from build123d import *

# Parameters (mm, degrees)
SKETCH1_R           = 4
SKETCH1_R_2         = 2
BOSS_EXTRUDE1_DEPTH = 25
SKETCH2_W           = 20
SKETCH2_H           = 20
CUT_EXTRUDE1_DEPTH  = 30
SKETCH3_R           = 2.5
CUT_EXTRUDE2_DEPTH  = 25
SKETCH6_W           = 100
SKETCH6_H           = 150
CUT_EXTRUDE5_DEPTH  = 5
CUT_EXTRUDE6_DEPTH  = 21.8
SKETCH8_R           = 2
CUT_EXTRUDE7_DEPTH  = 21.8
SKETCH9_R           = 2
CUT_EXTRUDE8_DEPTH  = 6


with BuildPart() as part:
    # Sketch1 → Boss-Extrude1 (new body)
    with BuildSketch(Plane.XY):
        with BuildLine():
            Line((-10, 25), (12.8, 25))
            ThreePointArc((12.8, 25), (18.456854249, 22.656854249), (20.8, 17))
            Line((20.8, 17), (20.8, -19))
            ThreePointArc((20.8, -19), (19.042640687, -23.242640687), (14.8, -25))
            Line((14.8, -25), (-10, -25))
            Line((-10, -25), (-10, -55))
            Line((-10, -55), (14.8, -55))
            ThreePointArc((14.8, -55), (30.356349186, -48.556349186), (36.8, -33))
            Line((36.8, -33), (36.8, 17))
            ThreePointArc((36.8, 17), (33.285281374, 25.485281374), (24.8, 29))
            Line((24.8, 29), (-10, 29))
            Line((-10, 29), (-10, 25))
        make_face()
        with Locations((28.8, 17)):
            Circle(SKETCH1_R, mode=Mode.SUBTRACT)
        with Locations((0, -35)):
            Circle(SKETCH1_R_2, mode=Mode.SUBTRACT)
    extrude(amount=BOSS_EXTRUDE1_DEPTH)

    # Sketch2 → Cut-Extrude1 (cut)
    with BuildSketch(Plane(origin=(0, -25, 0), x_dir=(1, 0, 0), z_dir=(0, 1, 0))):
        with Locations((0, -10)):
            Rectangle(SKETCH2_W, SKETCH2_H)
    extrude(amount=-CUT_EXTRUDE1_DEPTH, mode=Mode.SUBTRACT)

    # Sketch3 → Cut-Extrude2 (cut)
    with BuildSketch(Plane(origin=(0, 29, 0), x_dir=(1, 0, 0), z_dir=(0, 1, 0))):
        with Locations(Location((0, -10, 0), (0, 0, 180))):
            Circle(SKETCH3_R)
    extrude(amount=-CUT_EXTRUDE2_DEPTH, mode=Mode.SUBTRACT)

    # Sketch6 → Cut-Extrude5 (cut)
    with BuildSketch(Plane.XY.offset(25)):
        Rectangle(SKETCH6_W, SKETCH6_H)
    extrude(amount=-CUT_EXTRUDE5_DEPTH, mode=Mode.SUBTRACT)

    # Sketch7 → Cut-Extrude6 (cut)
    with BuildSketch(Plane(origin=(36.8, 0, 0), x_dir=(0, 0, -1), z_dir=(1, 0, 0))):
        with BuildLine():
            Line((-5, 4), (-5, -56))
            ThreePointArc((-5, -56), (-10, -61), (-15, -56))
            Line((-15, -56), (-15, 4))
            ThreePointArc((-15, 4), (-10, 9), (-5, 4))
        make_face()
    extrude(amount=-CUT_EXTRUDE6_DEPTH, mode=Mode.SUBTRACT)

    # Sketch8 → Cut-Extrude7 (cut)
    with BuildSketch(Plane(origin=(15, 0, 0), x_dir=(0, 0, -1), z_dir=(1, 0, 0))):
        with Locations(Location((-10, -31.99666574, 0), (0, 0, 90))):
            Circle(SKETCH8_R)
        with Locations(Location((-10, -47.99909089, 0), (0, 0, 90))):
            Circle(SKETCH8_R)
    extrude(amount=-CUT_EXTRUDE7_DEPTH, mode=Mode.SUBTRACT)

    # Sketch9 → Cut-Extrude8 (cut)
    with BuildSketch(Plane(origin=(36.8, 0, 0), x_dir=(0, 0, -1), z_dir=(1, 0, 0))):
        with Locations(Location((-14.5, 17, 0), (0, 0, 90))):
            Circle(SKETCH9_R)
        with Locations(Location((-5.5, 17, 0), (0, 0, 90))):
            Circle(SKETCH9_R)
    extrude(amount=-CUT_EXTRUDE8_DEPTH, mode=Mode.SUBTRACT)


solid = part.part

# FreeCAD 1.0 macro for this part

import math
import FreeCAD as App
import Part
import Sketcher

V = App.Vector
Q = App.Units.Quantity

doc = App.newDocument("Part")
body = doc.addObject("PartDesign::Body", "Body")

sketch1 = doc.addObject("Sketcher::SketchObject", "Sketch")
body.addObject(sketch1)
sketch1.AttachmentSupport = (doc.XY_Plane, [""])
sketch1.MapMode = "FlatFace"
sketch1.addGeometry([
    Part.LineSegment(V(-10, 25, 0), V(12.8, 25, 0)),
    Part.ArcOfCircle(Part.Circle(V(12.8, 17, 0), V(0, 0, 1), 8), math.radians(0), math.radians(90)),
    Part.LineSegment(V(20.8, 17, 0), V(20.8, -19, 0)),
    Part.ArcOfCircle(Part.Circle(V(14.8, -19, 0), V(0, 0, 1), 6), math.radians(-90), math.radians(0)),
    Part.LineSegment(V(14.8, -25, 0), V(-10, -25, 0)),
    Part.LineSegment(V(-10, -25, 0), V(-10, -55, 0)),
    Part.LineSegment(V(-10, -55, 0), V(14.8, -55, 0)),
    Part.ArcOfCircle(Part.Circle(V(14.8, -33, 0), V(0, 0, 1), 22), math.radians(-90), math.radians(0)),
    Part.LineSegment(V(36.8, -33, 0), V(36.8, 17, 0)),
    Part.ArcOfCircle(Part.Circle(V(24.8, 17, 0), V(0, 0, 1), 12), math.radians(0), math.radians(90)),
    Part.LineSegment(V(24.8, 29, 0), V(-10, 29, 0)),
    Part.LineSegment(V(-10, 29, 0), V(-10, 25, 0)),
    Part.Circle(V(0, -35, 0), V(0, 0, 1), 2),
    Part.Circle(V(28.8, 17, 0), V(0, 0, 1), 4),
], False)
sketch1.addConstraint([
    Sketcher.Constraint("Tangent", 0, 2, 1, 2),
    Sketcher.Constraint("Tangent", 1, 1, 2, 1),
    Sketcher.Constraint("Tangent", 2, 2, 3, 2),
    Sketcher.Constraint("Tangent", 3, 1, 4, 1),
    Sketcher.Constraint("Coincident", 4, 2, 5, 1),
    Sketcher.Constraint("Coincident", 5, 2, 6, 1),
    Sketcher.Constraint("Tangent", 6, 2, 7, 1),
    Sketcher.Constraint("Tangent", 7, 2, 8, 1),
    Sketcher.Constraint("Tangent", 8, 2, 9, 1),
    Sketcher.Constraint("Tangent", 9, 2, 10, 1),
    Sketcher.Constraint("Coincident", 10, 2, 11, 1),
    Sketcher.Constraint("Coincident", 11, 2, 0, 1),
    Sketcher.Constraint("Horizontal", 0),
    Sketcher.Constraint("Vertical", 2),
    Sketcher.Constraint("Horizontal", 4),
    Sketcher.Constraint("Vertical", 5),
    Sketcher.Constraint("Horizontal", 6),
    Sketcher.Constraint("Vertical", 8),
    Sketcher.Constraint("Horizontal", 10),
    Sketcher.Constraint("Vertical", 11),
    Sketcher.Constraint("Symmetric", 4, 2, 11, 2, -1),
    Sketcher.Constraint("PointOnObject", 12, 3, -2),
    Sketcher.Constraint("Horizontal", 1, 3, 9, 3),
    Sketcher.Constraint("Horizontal", 9, 3, 13, 3),
    Sketcher.Constraint("Vertical", 3, 3, 7, 3),
    Sketcher.Constraint("Diameter", 12, Q("4 mm")),
    Sketcher.Constraint("Diameter", 13, Q("8 mm")),
    Sketcher.Constraint("Radius", 1, Q("8 mm")),
    Sketcher.Constraint("Radius", 3, Q("6 mm")),
    Sketcher.Constraint("Radius", 7, Q("22 mm")),
    Sketcher.Constraint("Radius", 9, Q("12 mm")),
    Sketcher.Constraint("DistanceY", 2, 2, 2, 1, Q("36 mm")),
    Sketcher.Constraint("DistanceY", 5, 2, 5, 1, Q("30 mm")),
    Sketcher.Constraint("DistanceX", 0, 1, 0, 2, Q("22.8 mm")),
    Sketcher.Constraint("DistanceY", 12, 3, -1, 1, Q("35 mm")),
    Sketcher.Constraint("DistanceX", 4, 2, -1, 1, Q("10 mm")),
    Sketcher.Constraint("DistanceX", 9, 3, 13, 3, Q("4 mm")),
])
pad1 = doc.addObject("PartDesign::Pad", "Pad")
body.addObject(pad1)
pad1.Profile = sketch1
pad1.Length = 25

sketch2 = doc.addObject("Sketcher::SketchObject", "Sketch001")
body.addObject(sketch2)
sketch2.AttachmentSupport = (doc.XZ_Plane, [""])
sketch2.MapMode = "FlatFace"
sketch2.AttachmentOffset = App.Placement(V(0, 0, 25), App.Rotation())
sketch2.addGeometry([
    Part.LineSegment(V(-10, 0, 0), V(-10, 20, 0)),
    Part.LineSegment(V(-10, 20, 0), V(10, 20, 0)),
    Part.LineSegment(V(10, 20, 0), V(10, 0, 0)),
    Part.LineSegment(V(10, 0, 0), V(-10, 0, 0)),
], False)
sketch2.addConstraint([
    Sketcher.Constraint("Coincident", 0, 2, 1, 1),
    Sketcher.Constraint("Coincident", 1, 2, 2, 1),
    Sketcher.Constraint("Coincident", 2, 2, 3, 1),
    Sketcher.Constraint("Coincident", 3, 2, 0, 1),
    Sketcher.Constraint("Vertical", 0),
    Sketcher.Constraint("Horizontal", 1),
    Sketcher.Constraint("Vertical", 2),
    Sketcher.Constraint("Horizontal", 3),
    Sketcher.Constraint("Symmetric", 2, 2, 3, 2, -1, 1),
    Sketcher.Constraint("Equal", 3, 0),
    Sketcher.Constraint("DistanceX", 1, 1, 1, 2, Q("20 mm")),
])
pocket1 = doc.addObject("PartDesign::Pocket", "Pocket")
body.addObject(pocket1)
pocket1.Profile = sketch2
pocket1.Length = 30
pocket1.Reversed = True

sketch3 = doc.addObject("Sketcher::SketchObject", "Sketch002")
body.addObject(sketch3)
sketch3.AttachmentSupport = (doc.XZ_Plane, [""])
sketch3.MapMode = "FlatFace"
sketch3.AttachmentOffset = App.Placement(V(0, 0, -29), App.Rotation())
sketch3.addGeometry(Part.Circle(V(0, 10, 0), V(0, 0, 1), 2.5), False)
sketch3.addConstraint([
    Sketcher.Constraint("PointOnObject", 0, 3, -2),
    Sketcher.Constraint("Diameter", 0, Q("5 mm")),
    Sketcher.Constraint("DistanceY", -1, 1, 0, 3, Q("10 mm")),
])
pocket2 = doc.addObject("PartDesign::Pocket", "Pocket001")
body.addObject(pocket2)
pocket2.Profile = sketch3
pocket2.Length = 25
pocket2.Reversed = True

sketch4 = doc.addObject("Sketcher::SketchObject", "Sketch003")
body.addObject(sketch4)
sketch4.AttachmentSupport = (doc.XY_Plane, [""])
sketch4.MapMode = "FlatFace"
sketch4.AttachmentOffset = App.Placement(V(0, 0, 25), App.Rotation())
sketch4.addGeometry([
    Part.LineSegment(V(-50, 75, 0), V(-50, -75, 0)),
    Part.LineSegment(V(-50, -75, 0), V(50, -75, 0)),
    Part.LineSegment(V(50, -75, 0), V(50, 75, 0)),
    Part.LineSegment(V(50, 75, 0), V(-50, 75, 0)),
], False)
sketch4.addConstraint([
    Sketcher.Constraint("Coincident", 0, 2, 1, 1),
    Sketcher.Constraint("Coincident", 1, 2, 2, 1),
    Sketcher.Constraint("Coincident", 2, 2, 3, 1),
    Sketcher.Constraint("Coincident", 3, 2, 0, 1),
    Sketcher.Constraint("Vertical", 0),
    Sketcher.Constraint("Horizontal", 1),
    Sketcher.Constraint("Vertical", 2),
    Sketcher.Constraint("Horizontal", 3),
    Sketcher.Constraint("Symmetric", 0, 2, 2, 2, -1, 1),
    Sketcher.Constraint("DistanceX", 1, 1, 1, 2, Q("100 mm")),
    Sketcher.Constraint("DistanceY", 0, 2, 0, 1, Q("150 mm")),
])
pocket3 = doc.addObject("PartDesign::Pocket", "Pocket002")
body.addObject(pocket3)
pocket3.Profile = sketch4
pocket3.Length = 5

sketch5 = doc.addObject("Sketcher::SketchObject", "Sketch004")
body.addObject(sketch5)
sketch5.AttachmentSupport = (doc.YZ_Plane, [""])
sketch5.MapMode = "FlatFace"
sketch5.AttachmentOffset = App.Placement(V(0, 0, 36.8), App.Rotation())
sketch5.addGeometry([
    Part.LineSegment(V(-56, 5, 0), V(4, 5, 0)),
    Part.ArcOfCircle(Part.Circle(V(4, 10, 0), V(0, 0, 1), 5), math.radians(-90), math.radians(90)),
    Part.LineSegment(V(4, 15, 0), V(-56, 15, 0)),
    Part.ArcOfCircle(Part.Circle(V(-56, 10, 0), V(0, 0, 1), 5), math.radians(90), math.radians(270)),
], False)
sketch5.addConstraint([
    Sketcher.Constraint("Tangent", 0, 2, 1, 1),
    Sketcher.Constraint("Tangent", 1, 2, 2, 1),
    Sketcher.Constraint("Tangent", 2, 2, 3, 1),
    Sketcher.Constraint("Tangent", 3, 2, 0, 1),
    Sketcher.Constraint("Horizontal", 0),
    Sketcher.Constraint("Horizontal", 2),
    Sketcher.Constraint("Radius", 1, Q("5 mm")),
    Sketcher.Constraint("DistanceX", 0, 1, 0, 2, Q("60 mm")),
    Sketcher.Constraint("DistanceX", -1, 1, 1, 3, Q("4 mm")),
    Sketcher.Constraint("DistanceY", -1, 1, 1, 3, Q("10 mm")),
])
pocket4 = doc.addObject("PartDesign::Pocket", "Pocket003")
body.addObject(pocket4)
pocket4.Profile = sketch5
pocket4.Length = 21.8

sketch6 = doc.addObject("Sketcher::SketchObject", "Sketch005")
body.addObject(sketch6)
sketch6.AttachmentSupport = (doc.YZ_Plane, [""])
sketch6.MapMode = "FlatFace"
sketch6.AttachmentOffset = App.Placement(V(0, 0, 15), App.Rotation())
sketch6.addGeometry([
    Part.Circle(V(-31.996666, 10, 0), V(0, 0, 1), 2),
    Part.Circle(V(-47.999091, 10, 0), V(0, 0, 1), 2),
], False)
sketch6.addConstraint([
    Sketcher.Constraint("Equal", 0, 1),
    Sketcher.Constraint("Horizontal", 0, 3, 1, 3),
    Sketcher.Constraint("Diameter", 0, Q("4 mm")),
    Sketcher.Constraint("DistanceY", -1, 1, 0, 3, Q("10 mm")),
    Sketcher.Constraint("DistanceX", 1, 3, -1, 1, Q("47.999091 mm")),
    Sketcher.Constraint("DistanceX", 0, 3, -1, 1, Q("31.996666 mm")),
])
pocket5 = doc.addObject("PartDesign::Pocket", "Pocket004")
body.addObject(pocket5)
pocket5.Profile = sketch6
pocket5.Length = 21.8

sketch7 = doc.addObject("Sketcher::SketchObject", "Sketch006")
body.addObject(sketch7)
sketch7.AttachmentSupport = (doc.YZ_Plane, [""])
sketch7.MapMode = "FlatFace"
sketch7.AttachmentOffset = App.Placement(V(0, 0, 36.8), App.Rotation())
sketch7.addGeometry([
    Part.Circle(V(17, 14.5, 0), V(0, 0, 1), 2),
    Part.Circle(V(17, 5.5, 0), V(0, 0, 1), 2),
], False)
sketch7.addConstraint([
    Sketcher.Constraint("Equal", 0, 1),
    Sketcher.Constraint("Vertical", 0, 3, 1, 3),
    Sketcher.Constraint("Diameter", 0, Q("4 mm")),
    Sketcher.Constraint("DistanceX", -1, 1, 0, 3, Q("17 mm")),
    Sketcher.Constraint("DistanceY", 1, 3, 0, 3, Q("9 mm")),
    Sketcher.Constraint("DistanceY", -1, 1, 0, 3, Q("14.5 mm")),
])
pocket6 = doc.addObject("PartDesign::Pocket", "Pocket005")
body.addObject(pocket6)
pocket6.Profile = sketch7
pocket6.Length = 6

doc.recompute()
